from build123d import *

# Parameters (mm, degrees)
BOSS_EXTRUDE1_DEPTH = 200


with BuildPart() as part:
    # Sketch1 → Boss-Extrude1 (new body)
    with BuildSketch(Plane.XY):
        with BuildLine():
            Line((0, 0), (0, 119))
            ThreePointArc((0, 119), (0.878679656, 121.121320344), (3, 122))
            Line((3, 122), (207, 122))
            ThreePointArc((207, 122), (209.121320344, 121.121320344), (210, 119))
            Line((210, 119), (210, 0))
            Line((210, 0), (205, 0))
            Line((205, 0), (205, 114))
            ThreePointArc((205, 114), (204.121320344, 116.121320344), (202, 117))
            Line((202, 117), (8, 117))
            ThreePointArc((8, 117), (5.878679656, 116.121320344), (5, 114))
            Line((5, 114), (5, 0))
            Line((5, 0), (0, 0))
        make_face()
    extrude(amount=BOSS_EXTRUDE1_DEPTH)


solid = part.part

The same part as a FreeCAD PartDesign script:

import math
import FreeCAD as App
import Part
import Sketcher

doc = App.newDocument("Part")
body = doc.addObject("PartDesign::Body", "Body")

sketch1 = doc.addObject("Sketcher::SketchObject", "Sketch")
body.addObject(sketch1)
sketch1.AttachmentSupport = (doc.XY_Plane, [""])
sketch1.MapMode = "FlatFace"
sketch1.addGeometry([
    Part.LineSegment(App.Vector(0, 119, 0), App.Vector(0, 0, 0)),
    Part.LineSegment(App.Vector(0, 0, 0), App.Vector(5, 0, 0)),
    Part.LineSegment(App.Vector(5, 0, 0), App.Vector(5, 114, 0)),
    Part.ArcOfCircle(Part.Circle(App.Vector(8, 114, 0), App.Vector(0, 0, 1), 3), math.radians(90), math.radians(180)),
    Part.LineSegment(App.Vector(8, 117, 0), App.Vector(202, 117, 0)),
    Part.ArcOfCircle(Part.Circle(App.Vector(202, 114, 0), App.Vector(0, 0, 1), 3), math.radians(0), math.radians(90)),
    Part.LineSegment(App.Vector(205, 114, 0), App.Vector(205, 0, 0)),
    Part.LineSegment(App.Vector(205, 0, 0), App.Vector(210, 0, 0)),
    Part.LineSegment(App.Vector(210, 0, 0), App.Vector(210, 119, 0)),
    Part.ArcOfCircle(Part.Circle(App.Vector(207, 119, 0), App.Vector(0, 0, 1), 3), math.radians(0), math.radians(90)),
    Part.LineSegment(App.Vector(207, 122, 0), App.Vector(3, 122, 0)),
    Part.ArcOfCircle(Part.Circle(App.Vector(3, 119, 0), App.Vector(0, 0, 1), 3), math.radians(90), math.radians(180)),
], False)
sketch1.addConstraint([
    Sketcher.Constraint("Coincident", 0, 2, 1, 1),
    Sketcher.Constraint("Coincident", 1, 2, 2, 1),
    Sketcher.Constraint("Tangent", 2, 2, 3, 2),
    Sketcher.Constraint("Tangent", 3, 1, 4, 1),
    Sketcher.Constraint("Tangent", 4, 2, 5, 2),
    Sketcher.Constraint("Tangent", 5, 1, 6, 1),
    Sketcher.Constraint("Coincident", 6, 2, 7, 1),
    Sketcher.Constraint("Coincident", 7, 2, 8, 1),
    Sketcher.Constraint("Tangent", 8, 2, 9, 1),
    Sketcher.Constraint("Tangent", 9, 2, 10, 1),
    Sketcher.Constraint("Tangent", 10, 2, 11, 1),
    Sketcher.Constraint("Tangent", 11, 2, 0, 1),
    Sketcher.Constraint("Vertical", 0),
    Sketcher.Constraint("Horizontal", 1),
    Sketcher.Constraint("Vertical", 2),
    Sketcher.Constraint("Horizontal", 4),
    Sketcher.Constraint("Vertical", 6),
    Sketcher.Constraint("Horizontal", 7),
    Sketcher.Constraint("Vertical", 8),
    Sketcher.Constraint("Horizontal", 10),
    Sketcher.Constraint("Coincident", 0, 2, -1, 1),
    Sketcher.Constraint("Equal", 3, 5),
    Sketcher.Constraint("Equal", 5, 9),
    Sketcher.Constraint("Equal", 9, 11),
    Sketcher.Constraint("PointOnObject", 6, 2, -1),
    Sketcher.Constraint("Equal", 1, 7),
    Sketcher.Constraint("Radius", 3, 3.0),
    Sketcher.Constraint("DistanceX", 1, 1, 1, 2, 5.0),
    Sketcher.Constraint("DistanceX", 4, 1, 4, 2, 194.0),
    Sketcher.Constraint("DistanceY", 0, 2, 0, 1, 119.0),
    Sketcher.Constraint("DistanceY", 2, 1, 2, 2, 114.0),
])
pad1 = doc.addObject("PartDesign::Pad", "Pad")
body.addObject(pad1)
pad1.Profile = sketch1
pad1.Length = 200

doc.recompute()
